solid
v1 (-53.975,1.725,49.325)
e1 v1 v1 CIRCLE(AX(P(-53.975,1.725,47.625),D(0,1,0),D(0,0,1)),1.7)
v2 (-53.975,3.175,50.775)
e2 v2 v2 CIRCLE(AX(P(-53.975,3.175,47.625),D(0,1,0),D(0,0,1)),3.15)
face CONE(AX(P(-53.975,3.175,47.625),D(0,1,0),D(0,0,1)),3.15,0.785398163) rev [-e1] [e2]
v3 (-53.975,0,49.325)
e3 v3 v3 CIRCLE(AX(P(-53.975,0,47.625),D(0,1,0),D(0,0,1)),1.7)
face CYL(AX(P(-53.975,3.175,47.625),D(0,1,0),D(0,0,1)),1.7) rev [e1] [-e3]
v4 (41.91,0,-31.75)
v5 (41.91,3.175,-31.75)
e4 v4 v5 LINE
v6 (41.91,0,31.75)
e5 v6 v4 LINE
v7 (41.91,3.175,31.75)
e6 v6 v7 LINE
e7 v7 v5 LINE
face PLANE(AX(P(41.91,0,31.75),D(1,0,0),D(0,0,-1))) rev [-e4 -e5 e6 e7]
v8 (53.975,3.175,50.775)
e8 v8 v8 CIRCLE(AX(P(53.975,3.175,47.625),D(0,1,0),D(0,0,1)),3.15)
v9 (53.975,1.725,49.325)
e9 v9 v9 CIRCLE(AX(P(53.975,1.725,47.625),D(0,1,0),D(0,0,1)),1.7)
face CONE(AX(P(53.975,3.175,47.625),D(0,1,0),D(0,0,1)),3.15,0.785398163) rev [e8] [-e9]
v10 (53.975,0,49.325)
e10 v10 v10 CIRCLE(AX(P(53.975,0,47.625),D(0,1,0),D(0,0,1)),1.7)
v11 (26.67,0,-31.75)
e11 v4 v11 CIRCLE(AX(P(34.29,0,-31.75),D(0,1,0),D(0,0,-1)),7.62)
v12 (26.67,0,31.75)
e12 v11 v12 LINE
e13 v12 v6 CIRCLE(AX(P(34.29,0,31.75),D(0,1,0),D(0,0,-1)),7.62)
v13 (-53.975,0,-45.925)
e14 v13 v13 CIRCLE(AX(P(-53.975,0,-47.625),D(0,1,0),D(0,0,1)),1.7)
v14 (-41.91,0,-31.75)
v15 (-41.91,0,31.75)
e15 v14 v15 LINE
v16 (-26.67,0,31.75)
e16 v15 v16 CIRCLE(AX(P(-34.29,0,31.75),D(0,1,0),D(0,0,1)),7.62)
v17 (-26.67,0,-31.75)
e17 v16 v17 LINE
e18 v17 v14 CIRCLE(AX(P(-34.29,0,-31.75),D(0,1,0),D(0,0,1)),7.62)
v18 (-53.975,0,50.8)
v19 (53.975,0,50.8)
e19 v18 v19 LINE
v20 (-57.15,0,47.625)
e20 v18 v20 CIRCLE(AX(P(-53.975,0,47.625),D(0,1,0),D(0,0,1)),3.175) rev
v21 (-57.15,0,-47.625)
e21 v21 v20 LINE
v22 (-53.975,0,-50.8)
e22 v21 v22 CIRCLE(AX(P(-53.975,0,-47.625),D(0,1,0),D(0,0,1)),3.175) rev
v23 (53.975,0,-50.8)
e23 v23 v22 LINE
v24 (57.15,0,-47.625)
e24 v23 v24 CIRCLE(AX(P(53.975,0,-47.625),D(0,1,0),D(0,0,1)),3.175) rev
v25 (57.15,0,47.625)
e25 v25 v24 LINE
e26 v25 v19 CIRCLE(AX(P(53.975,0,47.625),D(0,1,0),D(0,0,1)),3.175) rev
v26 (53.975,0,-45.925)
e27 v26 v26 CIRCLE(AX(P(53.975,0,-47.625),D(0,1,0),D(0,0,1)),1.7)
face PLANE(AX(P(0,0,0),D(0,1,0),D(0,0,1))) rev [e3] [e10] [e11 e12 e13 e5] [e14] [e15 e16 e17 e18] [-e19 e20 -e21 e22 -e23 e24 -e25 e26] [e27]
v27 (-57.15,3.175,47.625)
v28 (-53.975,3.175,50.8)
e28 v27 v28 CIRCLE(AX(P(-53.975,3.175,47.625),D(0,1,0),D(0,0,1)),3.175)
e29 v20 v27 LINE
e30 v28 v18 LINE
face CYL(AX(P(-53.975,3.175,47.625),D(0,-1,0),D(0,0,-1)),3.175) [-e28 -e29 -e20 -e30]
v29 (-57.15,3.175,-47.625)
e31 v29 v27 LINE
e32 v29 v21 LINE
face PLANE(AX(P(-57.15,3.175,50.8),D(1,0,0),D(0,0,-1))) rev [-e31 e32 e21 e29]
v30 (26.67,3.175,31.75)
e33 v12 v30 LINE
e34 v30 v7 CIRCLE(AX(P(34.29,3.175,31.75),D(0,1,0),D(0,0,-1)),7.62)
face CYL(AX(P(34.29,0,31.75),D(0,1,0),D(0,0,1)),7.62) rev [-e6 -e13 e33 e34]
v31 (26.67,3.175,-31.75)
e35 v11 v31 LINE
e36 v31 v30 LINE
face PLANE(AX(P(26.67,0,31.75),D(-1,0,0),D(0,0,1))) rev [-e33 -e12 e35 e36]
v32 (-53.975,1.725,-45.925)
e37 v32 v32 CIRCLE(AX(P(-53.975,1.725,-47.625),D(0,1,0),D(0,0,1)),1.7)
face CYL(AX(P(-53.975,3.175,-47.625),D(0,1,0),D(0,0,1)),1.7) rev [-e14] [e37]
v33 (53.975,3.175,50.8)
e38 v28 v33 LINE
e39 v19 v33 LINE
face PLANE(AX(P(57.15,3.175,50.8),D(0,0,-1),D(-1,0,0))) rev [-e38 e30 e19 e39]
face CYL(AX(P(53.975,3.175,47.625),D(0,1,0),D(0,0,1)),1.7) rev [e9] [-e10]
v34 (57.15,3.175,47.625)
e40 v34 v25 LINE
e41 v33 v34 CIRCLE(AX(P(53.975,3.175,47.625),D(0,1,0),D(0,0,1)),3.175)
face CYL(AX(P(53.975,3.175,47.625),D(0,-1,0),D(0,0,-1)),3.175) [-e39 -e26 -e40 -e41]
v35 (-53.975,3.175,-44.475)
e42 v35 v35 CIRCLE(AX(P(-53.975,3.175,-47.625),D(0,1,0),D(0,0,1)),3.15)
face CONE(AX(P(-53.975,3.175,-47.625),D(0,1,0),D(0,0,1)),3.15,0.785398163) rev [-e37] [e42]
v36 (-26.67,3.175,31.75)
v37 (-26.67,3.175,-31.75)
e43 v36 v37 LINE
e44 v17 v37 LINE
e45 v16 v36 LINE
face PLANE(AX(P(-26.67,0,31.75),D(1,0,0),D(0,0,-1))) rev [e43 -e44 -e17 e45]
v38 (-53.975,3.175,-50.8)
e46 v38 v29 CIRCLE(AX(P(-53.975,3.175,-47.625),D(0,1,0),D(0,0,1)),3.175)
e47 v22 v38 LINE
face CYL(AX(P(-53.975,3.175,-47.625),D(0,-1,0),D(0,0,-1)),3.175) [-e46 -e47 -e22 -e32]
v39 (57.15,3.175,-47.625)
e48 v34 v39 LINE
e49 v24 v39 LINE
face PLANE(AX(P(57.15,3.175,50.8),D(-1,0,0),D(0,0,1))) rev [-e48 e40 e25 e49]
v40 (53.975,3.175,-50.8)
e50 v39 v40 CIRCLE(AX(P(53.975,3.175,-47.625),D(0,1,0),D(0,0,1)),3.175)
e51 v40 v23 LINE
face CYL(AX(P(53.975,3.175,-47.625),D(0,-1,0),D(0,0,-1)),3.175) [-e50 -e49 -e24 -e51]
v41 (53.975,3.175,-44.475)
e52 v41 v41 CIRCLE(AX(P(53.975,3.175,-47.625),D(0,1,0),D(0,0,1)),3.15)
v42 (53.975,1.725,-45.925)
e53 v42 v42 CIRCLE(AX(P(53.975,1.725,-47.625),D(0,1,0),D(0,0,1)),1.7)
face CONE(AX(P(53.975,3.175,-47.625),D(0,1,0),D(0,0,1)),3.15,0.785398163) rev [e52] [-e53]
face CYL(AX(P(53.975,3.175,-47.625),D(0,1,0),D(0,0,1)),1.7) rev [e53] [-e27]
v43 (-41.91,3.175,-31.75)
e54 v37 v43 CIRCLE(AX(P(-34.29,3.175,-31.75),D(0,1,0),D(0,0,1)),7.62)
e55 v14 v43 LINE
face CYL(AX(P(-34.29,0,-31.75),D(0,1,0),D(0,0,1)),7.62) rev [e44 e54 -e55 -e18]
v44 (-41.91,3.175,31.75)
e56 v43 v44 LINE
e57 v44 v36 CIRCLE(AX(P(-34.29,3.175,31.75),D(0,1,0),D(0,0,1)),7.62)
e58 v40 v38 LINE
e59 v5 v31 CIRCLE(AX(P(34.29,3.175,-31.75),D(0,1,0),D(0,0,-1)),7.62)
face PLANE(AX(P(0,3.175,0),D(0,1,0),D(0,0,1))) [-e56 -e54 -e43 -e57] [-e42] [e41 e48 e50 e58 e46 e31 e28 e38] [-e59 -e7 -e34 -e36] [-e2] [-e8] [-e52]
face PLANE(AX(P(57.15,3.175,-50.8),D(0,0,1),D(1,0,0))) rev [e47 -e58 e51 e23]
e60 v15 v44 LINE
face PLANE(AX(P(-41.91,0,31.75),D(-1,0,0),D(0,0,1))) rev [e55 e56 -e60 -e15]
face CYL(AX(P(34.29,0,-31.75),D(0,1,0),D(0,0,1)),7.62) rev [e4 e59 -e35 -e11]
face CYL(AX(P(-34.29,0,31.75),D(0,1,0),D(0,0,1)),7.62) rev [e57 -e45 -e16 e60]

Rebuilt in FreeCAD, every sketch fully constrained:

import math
import FreeCAD as App
import Part
import Sketcher
from FreeCAD import Vector
Q = App.Units.Quantity


def edges_at(feature, points):
    """Names of the edges that pass closest to the given points."""
    edges = feature.Shape.Edges
    near = lambda p: min(range(len(edges)), key=lambda i: edges[i].distToShape(Part.Vertex(*p))[0])
    return sorted({f"Edge{near(p) + 1}" for p in points})

doc = App.newDocument("Part")
params = doc.addObject("Spreadsheet::Sheet", "Params")
for row, (alias, value) in enumerate([
    ("sketch1_height", "4 in"),
    ("sketch1_width", "4.5 in"),
    ("pad1_length", "0.125 in"),
    ("fillet_radius", "0.125 in"),
    ("hole_diameter", "3.4 mm"),
    ("hole_depth", "0.31 in"),
    ("hole_csink_diameter", "6.3 mm"),
    ("sketch3_radius", "0.3 in"),
    ("sketch3_height", "2.5 in"),
], start=1):
    params.set(f"A{row}", alias)
    params.set(f"B{row}", "=" + value)
    params.setAlias(f"B{row}", alias)

body = doc.addObject("PartDesign::Body", "Body")

# Sketch on XZ plane
sketch1 = body.newObject("Sketcher::SketchObject", "Sketch")
sketch1.AttachmentSupport = (doc.getObject("XZ_Plane"), [""])
sketch1.MapMode = "FlatFace"
sketch1.addGeometry([
    Part.LineSegment(Vector(-57, -51, 0), Vector(-57, 51, 0)),
    Part.LineSegment(Vector(-57, 51, 0), Vector(57, 51, 0)),
    Part.LineSegment(Vector(57, 51, 0), Vector(57, -51, 0)),
    Part.LineSegment(Vector(57, -51, 0), Vector(-57, -51, 0)),
], False)
sketch1.addConstraint([
    Sketcher.Constraint("Coincident", 0, 2, 1, 1),
    Sketcher.Constraint("Coincident", 1, 2, 2, 1),
    Sketcher.Constraint("Coincident", 2, 2, 3, 1),
    Sketcher.Constraint("Coincident", 3, 2, 0, 1),
    Sketcher.Constraint("Vertical", 0),
    Sketcher.Constraint("Horizontal", 1),
    Sketcher.Constraint("Vertical", 2),
    Sketcher.Constraint("Horizontal", 3),
    Sketcher.Constraint("Symmetric", 0, 2, 2, 2, -1, 1),
    Sketcher.Constraint("DistanceY", 0, 1, 0, 2, Q("4 in")),
    Sketcher.Constraint("DistanceX", 1, 1, 1, 2, Q("4.5 in")),
])
sketch1.setExpression("Constraints[9]", "Params.sketch1_height")
sketch1.setExpression("Constraints[10]", "Params.sketch1_width")
pad1 = body.newObject("PartDesign::Pad", "Pad")
pad1.Profile = sketch1
pad1.setExpression("Length", "Params.pad1_length")
pad1.Reversed = True
doc.recompute()

fillet = body.newObject("PartDesign::Fillet", "Fillet")
fillet.Base = (pad1, edges_at(pad1, [
    (-57.15, 1.587, -50.8),
    (57.15, 1.587, -50.8),
    (57.15, 1.587, 50.8),
    (-57.15, 1.587, 50.8),
]))
fillet.setExpression("Radius", "Params.fillet_radius")

# Sketch on XZ plane
sketch2 = body.newObject("Sketcher::SketchObject", "Sketch001")
sketch2.AttachmentSupport = (doc.getObject("XZ_Plane"), [""])
sketch2.MapMode = "FlatFace"
sketch2.AttachmentOffset = App.Placement(Vector(0, 0, -0.125 * 25.4), App.Rotation())
sketch2.addGeometry([
    Part.Circle(Vector(54, 47.6, 0), Vector(0, 0, 1), 1.7),
    Part.Circle(Vector(54, -47.6, 0), Vector(0, 0, 1), 1.7),
    Part.Circle(Vector(-54, -47.6, 0), Vector(0, 0, 1), 1.7),
    Part.Circle(Vector(-54, 47.6, 0), Vector(0, 0, 1), 1.7),
], False)
sketch2.addConstraint([
    Sketcher.Constraint("Equal", 0, 1),
    Sketcher.Constraint("Equal", 1, 2),
    Sketcher.Constraint("Equal", 2, 3),
    Sketcher.Constraint("Symmetric", 0, 3, 2, 3, -1, 1),
    Sketcher.Constraint("Symmetric", 1, 3, 3, 3, -1, 1),
    Sketcher.Constraint("Symmetric", 1, 3, 2, 3, -2),
    Sketcher.Constraint("Diameter", 0, 3.4),
    Sketcher.Constraint("DistanceY", 1, 3, 0, 3, Q("3.75 in")),
    Sketcher.Constraint("DistanceX", 2, 3, 1, 3, Q("4.25 in")),
])
doc.recompute()
hole = body.newObject("PartDesign::Hole", "Hole")
hole.Profile = sketch2
hole.ThreadType = "None"
hole.setExpression("Diameter", "Params.hole_diameter")
hole.DepthType = "Dimension"
hole.setExpression("Depth", "Params.hole_depth")
hole.DrillPoint = "Angled"
hole.DrillPointAngle = 118
hole.HoleCutType = "Countersink"
hole.setExpression("HoleCutDiameter", "Params.hole_csink_diameter")
hole.HoleCutCountersinkAngle = 90
hole.Reversed = True

# Sketch on XZ plane
sketch3 = body.newObject("Sketcher::SketchObject", "Sketch002")
sketch3.AttachmentSupport = (doc.getObject("XZ_Plane"), [""])
sketch3.MapMode = "FlatFace"
sketch3.AttachmentOffset = App.Placement(Vector(0, 0, -0.125 * 25.4), App.Rotation())
sketch3.addGeometry([
    Part.LineSegment(Vector(-42, -32, 0), Vector(-42, 32, 0)),  # 0
    Part.ArcOfCircle(Part.Circle(Vector(-34, 32, 0), Vector(0, 0, 1), 8), math.radians(0), math.radians(180)),  # 1
    Part.LineSegment(Vector(-27, 32, 0), Vector(-27, -32, 0)),  # 2
    Part.ArcOfCircle(Part.Circle(Vector(-34, -32, 0), Vector(0, 0, 1), 8), math.radians(180), math.radians(360)),  # 3
    Part.LineSegment(Vector(42, 32, 0), Vector(42, -32, 0)),  # 4
    Part.ArcOfCircle(Part.Circle(Vector(34, -32, 0), Vector(0, 0, 1), 8), math.radians(180), math.radians(360)),  # 5
    Part.LineSegment(Vector(27, -32, 0), Vector(27, 32, 0)),  # 6
    Part.ArcOfCircle(Part.Circle(Vector(34, 32, 0), Vector(0, 0, 1), 8), math.radians(0), math.radians(180)),  # 7
], False)
sketch3.addConstraint([
    Sketcher.Constraint("Tangent", 0, 2, 1, 2),
    Sketcher.Constraint("Tangent", 1, 1, 2, 1),
    Sketcher.Constraint("Tangent", 2, 2, 3, 2),
    Sketcher.Constraint("Tangent", 3, 1, 0, 1),
    Sketcher.Constraint("Tangent", 4, 2, 5, 2),
    Sketcher.Constraint("Tangent", 5, 1, 6, 1),
    Sketcher.Constraint("Tangent", 6, 2, 7, 2),
    Sketcher.Constraint("Tangent", 7, 1, 4, 1),
    Sketcher.Constraint("Vertical", 0),
    Sketcher.Constraint("Vertical", 2),
    Sketcher.Constraint("Vertical", 4),
    Sketcher.Constraint("Vertical", 6),
    Sketcher.Constraint("Equal", 3, 5),
    Sketcher.Constraint("Symmetric", 1, 3, 5, 3, -1, 1),
    Sketcher.Constraint("Horizontal", 3, 3, 5, 3),
    Sketcher.Constraint("Horizontal", 1, 3, 7, 3),
    Sketcher.Constraint("Radius", 1, Q("0.3 in")),
    Sketcher.Constraint("DistanceY", 0, 1, 0, 2, Q("2.5 in")),
    Sketcher.Constraint("DistanceX", 0, 2, 7, 3, Q("3 in")),
])
sketch3.setExpression("Constraints[16]", "Params.sketch3_radius")
sketch3.setExpression("Constraints[17]", "Params.sketch3_height")
pocket1 = body.newObject("PartDesign::Pocket", "Pocket")
pocket1.Profile = sketch3
pocket1.Type = "ThroughAll"
pocket1.Reversed = True

doc.recompute()
